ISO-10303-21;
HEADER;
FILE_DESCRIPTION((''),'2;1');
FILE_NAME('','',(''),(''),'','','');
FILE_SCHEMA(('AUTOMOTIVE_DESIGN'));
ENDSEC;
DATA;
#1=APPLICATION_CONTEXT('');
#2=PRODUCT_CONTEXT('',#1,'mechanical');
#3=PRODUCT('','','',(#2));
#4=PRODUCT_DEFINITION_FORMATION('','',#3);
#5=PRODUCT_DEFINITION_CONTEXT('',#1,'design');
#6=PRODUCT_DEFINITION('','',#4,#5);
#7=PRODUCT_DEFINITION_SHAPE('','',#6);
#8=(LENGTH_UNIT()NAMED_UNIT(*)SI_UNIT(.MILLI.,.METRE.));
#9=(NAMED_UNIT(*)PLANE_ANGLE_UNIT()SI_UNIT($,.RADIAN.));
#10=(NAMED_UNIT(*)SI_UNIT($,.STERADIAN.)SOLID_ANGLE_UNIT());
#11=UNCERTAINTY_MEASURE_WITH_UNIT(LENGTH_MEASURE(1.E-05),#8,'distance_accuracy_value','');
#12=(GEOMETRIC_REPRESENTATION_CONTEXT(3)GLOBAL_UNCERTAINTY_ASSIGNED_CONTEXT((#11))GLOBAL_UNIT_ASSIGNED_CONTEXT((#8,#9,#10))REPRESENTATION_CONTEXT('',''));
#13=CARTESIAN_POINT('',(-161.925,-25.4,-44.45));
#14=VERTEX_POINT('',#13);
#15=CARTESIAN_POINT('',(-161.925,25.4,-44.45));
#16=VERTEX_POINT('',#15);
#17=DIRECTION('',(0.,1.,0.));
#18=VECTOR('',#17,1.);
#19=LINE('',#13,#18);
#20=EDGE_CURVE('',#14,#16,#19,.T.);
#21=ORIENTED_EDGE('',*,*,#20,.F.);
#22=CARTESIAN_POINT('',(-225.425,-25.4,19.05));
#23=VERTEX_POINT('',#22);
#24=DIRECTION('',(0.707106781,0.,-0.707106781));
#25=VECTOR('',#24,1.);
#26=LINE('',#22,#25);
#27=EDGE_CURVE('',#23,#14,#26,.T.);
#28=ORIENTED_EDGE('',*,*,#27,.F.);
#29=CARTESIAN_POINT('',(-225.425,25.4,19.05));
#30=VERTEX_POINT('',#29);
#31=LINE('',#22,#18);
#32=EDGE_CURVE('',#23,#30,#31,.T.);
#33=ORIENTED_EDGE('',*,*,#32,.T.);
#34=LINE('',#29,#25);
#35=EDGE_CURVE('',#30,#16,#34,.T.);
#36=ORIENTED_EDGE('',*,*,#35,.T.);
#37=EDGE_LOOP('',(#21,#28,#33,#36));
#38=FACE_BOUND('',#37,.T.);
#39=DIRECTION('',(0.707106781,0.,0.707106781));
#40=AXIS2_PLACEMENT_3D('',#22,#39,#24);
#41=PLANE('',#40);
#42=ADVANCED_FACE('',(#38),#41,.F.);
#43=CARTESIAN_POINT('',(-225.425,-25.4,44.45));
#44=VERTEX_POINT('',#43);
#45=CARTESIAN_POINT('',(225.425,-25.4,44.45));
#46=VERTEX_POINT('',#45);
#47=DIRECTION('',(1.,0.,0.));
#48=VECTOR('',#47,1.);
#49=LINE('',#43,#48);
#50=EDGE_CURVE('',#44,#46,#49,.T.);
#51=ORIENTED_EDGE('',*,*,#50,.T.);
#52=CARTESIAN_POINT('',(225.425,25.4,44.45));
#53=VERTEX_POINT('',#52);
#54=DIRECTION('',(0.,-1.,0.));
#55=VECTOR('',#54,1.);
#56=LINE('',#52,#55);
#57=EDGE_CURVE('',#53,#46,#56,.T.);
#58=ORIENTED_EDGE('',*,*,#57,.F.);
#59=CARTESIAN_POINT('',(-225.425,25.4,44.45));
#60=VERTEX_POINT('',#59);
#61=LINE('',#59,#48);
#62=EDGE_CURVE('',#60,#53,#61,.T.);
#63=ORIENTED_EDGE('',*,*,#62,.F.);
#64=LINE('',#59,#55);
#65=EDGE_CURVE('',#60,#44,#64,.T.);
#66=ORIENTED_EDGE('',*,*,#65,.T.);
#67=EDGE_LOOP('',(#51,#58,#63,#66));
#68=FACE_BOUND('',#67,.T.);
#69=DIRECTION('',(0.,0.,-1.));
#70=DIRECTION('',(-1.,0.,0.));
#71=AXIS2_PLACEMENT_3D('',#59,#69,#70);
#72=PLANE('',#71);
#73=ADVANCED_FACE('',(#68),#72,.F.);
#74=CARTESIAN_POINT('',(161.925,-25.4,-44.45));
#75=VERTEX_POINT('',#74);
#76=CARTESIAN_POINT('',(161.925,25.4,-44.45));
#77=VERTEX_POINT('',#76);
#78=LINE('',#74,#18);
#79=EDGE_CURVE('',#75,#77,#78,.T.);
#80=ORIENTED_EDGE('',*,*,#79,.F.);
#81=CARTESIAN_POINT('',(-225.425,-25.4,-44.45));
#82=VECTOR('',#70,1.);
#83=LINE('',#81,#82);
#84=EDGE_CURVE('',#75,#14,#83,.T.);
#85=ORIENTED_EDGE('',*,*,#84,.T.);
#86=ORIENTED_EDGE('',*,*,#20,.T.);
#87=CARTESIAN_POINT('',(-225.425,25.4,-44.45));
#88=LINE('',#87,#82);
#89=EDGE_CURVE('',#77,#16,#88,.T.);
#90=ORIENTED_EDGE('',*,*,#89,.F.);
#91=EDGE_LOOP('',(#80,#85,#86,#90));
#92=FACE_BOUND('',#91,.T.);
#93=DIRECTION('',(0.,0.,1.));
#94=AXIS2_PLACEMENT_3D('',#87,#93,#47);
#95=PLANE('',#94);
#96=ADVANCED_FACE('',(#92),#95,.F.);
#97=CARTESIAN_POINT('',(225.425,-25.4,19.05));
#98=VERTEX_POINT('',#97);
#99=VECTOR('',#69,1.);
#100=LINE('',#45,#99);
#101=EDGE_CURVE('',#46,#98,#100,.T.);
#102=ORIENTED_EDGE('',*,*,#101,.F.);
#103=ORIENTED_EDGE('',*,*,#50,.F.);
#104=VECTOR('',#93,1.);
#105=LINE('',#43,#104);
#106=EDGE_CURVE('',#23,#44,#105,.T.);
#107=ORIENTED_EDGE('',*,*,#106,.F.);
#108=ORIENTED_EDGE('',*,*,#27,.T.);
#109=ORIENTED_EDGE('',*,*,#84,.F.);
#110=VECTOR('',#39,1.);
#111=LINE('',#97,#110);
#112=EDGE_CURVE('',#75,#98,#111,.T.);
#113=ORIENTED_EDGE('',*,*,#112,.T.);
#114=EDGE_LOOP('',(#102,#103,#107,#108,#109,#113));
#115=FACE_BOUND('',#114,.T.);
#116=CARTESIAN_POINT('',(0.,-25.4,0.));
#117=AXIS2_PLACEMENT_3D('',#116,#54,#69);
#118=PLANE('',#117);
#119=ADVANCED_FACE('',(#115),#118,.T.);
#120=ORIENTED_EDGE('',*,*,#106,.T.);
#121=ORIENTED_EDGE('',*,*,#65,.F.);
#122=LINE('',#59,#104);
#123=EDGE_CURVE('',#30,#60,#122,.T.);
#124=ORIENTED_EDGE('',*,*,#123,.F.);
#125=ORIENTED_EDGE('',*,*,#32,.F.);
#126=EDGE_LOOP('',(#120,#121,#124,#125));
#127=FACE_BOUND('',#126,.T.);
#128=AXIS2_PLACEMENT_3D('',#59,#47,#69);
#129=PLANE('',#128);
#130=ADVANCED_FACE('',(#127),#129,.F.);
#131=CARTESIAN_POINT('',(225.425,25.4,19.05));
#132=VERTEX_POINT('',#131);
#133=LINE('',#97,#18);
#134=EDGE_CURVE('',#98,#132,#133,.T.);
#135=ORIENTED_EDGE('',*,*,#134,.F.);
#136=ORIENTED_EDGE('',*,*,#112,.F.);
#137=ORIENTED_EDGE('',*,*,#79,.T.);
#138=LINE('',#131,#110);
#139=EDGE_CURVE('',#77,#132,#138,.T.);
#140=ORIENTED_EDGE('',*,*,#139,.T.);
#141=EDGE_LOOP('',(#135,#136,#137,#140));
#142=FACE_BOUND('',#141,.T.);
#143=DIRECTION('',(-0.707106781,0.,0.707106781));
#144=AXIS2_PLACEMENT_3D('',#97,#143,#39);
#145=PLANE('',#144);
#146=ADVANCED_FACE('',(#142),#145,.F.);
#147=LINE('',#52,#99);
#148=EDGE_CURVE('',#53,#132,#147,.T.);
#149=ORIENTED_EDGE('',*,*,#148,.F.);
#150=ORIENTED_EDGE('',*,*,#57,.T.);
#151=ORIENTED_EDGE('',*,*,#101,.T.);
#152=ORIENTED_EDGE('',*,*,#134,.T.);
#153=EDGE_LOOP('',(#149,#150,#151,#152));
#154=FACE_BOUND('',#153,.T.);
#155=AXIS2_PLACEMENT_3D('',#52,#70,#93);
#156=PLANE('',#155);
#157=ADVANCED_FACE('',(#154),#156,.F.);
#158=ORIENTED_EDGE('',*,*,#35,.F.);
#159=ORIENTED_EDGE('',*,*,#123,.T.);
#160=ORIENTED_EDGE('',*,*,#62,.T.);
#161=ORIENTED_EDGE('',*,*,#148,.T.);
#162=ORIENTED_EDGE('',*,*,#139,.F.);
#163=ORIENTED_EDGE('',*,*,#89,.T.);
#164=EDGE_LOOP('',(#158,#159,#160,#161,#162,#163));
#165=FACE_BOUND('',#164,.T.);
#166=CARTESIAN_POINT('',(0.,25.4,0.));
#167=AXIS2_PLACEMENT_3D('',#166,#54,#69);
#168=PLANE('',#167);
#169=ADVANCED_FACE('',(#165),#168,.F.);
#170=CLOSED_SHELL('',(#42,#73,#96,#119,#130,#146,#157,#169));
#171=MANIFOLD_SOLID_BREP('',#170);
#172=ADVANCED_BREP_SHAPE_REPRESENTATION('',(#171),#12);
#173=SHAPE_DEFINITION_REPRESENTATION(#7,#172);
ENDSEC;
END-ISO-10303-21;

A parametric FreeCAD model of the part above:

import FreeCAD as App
import Part
import Sketcher

V = App.Vector
Q = App.Units.Quantity


def add_polygon(sketch, points):
    """Adds a closed chain of lines whose ends are joined by coincident constraints."""
    first, n = sketch.GeometryCount, len(points)
    for a, b in zip(points, points[1:] + points[:1]):
        sketch.addGeometry(Part.LineSegment(App.Vector(*a, 0), App.Vector(*b, 0)), False)
    for i in range(n):
        sketch.addConstraint(Sketcher.Constraint("Coincident", first + i, 2, first + (i + 1) % n, 1))

doc = App.newDocument("Part")
params = doc.addObject("Spreadsheet::Sheet", "Params")
for row, (alias, value) in enumerate([
    ("sketch1_height", "3.5 in"),
    ("sketch1_width", "17.75 in"),
    ("pad1_length", "2 in"),
    ("sketch2_width", "2.5 in"),
], start=1):
    params.set(f"A{row}", alias)
    params.set(f"B{row}", "=" + value)
    params.setAlias(f"B{row}", alias)

body = doc.addObject("PartDesign::Body", "Body")

sketch1 = body.newObject("Sketcher::SketchObject", "Sketch")
sketch1.AttachmentSupport = (doc.getObject("XZ_Plane"), [""])
sketch1.MapMode = "FlatFace"
add_polygon(sketch1, [(-225, -44), (-225, 44), (225, 44), (225, -44)])
sketch1.addConstraint([
    Sketcher.Constraint("Vertical", 0),
    Sketcher.Constraint("Horizontal", 1),
    Sketcher.Constraint("Vertical", 2),
    Sketcher.Constraint("Horizontal", 3),
    Sketcher.Constraint("Symmetric", 0, 2, 2, 2, -1, 1),
    Sketcher.Constraint("DistanceY", 0, 1, 0, 2, Q("3.5 in")),
    Sketcher.Constraint("DistanceX", 1, 1, 1, 2, Q("17.75 in")),
])
sketch1.setExpression("Constraints[9]", "Params.sketch1_height")
sketch1.setExpression("Constraints[10]", "Params.sketch1_width")
pad1 = body.newObject("PartDesign::Pad", "Pad")
pad1.Profile = sketch1
pad1.setExpression("Length", "Params.pad1_length")
pad1.Midplane = True

sketch2 = body.newObject("Sketcher::SketchObject", "Sketch001")
sketch2.AttachmentSupport = (doc.getObject("XZ_Plane"), [""])
sketch2.MapMode = "FlatFace"
sketch2.AttachmentOffset = App.Placement(V(0, 0, -1 * 25.4), App.Rotation())
add_polygon(sketch2, [(-225, -44), (-225, 19), (-162, -44)])
add_polygon(sketch2, [(162, -44), (225, 19), (225, -44)])
sketch2.addConstraint([
    Sketcher.Constraint("Vertical", 0),
    Sketcher.Constraint("Horizontal", 2),
    Sketcher.Constraint("Vertical", 4),
    Sketcher.Constraint("Horizontal", 5),
    Sketcher.Constraint("Symmetric", 0, 2, 3, 2, -2),
    Sketcher.Constraint("Symmetric", 1, 2, 5, 2, -2),
    Sketcher.Constraint("Perpendicular", 1, 3),
    Sketcher.Constraint("DistanceX", 2, 2, 2, 1, Q("2.5 in")),
    Sketcher.Constraint("DistanceY", -1, 1, 0, 2, Q("0.75 in")),
    Sketcher.Constraint("DistanceX", 1, 2, 3, 2, Q("15.25 in")),
])
sketch2.setExpression("Constraints[13]", "Params.sketch2_width")
pocket1 = body.newObject("PartDesign::Pocket", "Pocket")
pocket1.Profile = sketch2
pocket1.Type = "ThroughAll"
pocket1.Reversed = True

doc.recompute()
